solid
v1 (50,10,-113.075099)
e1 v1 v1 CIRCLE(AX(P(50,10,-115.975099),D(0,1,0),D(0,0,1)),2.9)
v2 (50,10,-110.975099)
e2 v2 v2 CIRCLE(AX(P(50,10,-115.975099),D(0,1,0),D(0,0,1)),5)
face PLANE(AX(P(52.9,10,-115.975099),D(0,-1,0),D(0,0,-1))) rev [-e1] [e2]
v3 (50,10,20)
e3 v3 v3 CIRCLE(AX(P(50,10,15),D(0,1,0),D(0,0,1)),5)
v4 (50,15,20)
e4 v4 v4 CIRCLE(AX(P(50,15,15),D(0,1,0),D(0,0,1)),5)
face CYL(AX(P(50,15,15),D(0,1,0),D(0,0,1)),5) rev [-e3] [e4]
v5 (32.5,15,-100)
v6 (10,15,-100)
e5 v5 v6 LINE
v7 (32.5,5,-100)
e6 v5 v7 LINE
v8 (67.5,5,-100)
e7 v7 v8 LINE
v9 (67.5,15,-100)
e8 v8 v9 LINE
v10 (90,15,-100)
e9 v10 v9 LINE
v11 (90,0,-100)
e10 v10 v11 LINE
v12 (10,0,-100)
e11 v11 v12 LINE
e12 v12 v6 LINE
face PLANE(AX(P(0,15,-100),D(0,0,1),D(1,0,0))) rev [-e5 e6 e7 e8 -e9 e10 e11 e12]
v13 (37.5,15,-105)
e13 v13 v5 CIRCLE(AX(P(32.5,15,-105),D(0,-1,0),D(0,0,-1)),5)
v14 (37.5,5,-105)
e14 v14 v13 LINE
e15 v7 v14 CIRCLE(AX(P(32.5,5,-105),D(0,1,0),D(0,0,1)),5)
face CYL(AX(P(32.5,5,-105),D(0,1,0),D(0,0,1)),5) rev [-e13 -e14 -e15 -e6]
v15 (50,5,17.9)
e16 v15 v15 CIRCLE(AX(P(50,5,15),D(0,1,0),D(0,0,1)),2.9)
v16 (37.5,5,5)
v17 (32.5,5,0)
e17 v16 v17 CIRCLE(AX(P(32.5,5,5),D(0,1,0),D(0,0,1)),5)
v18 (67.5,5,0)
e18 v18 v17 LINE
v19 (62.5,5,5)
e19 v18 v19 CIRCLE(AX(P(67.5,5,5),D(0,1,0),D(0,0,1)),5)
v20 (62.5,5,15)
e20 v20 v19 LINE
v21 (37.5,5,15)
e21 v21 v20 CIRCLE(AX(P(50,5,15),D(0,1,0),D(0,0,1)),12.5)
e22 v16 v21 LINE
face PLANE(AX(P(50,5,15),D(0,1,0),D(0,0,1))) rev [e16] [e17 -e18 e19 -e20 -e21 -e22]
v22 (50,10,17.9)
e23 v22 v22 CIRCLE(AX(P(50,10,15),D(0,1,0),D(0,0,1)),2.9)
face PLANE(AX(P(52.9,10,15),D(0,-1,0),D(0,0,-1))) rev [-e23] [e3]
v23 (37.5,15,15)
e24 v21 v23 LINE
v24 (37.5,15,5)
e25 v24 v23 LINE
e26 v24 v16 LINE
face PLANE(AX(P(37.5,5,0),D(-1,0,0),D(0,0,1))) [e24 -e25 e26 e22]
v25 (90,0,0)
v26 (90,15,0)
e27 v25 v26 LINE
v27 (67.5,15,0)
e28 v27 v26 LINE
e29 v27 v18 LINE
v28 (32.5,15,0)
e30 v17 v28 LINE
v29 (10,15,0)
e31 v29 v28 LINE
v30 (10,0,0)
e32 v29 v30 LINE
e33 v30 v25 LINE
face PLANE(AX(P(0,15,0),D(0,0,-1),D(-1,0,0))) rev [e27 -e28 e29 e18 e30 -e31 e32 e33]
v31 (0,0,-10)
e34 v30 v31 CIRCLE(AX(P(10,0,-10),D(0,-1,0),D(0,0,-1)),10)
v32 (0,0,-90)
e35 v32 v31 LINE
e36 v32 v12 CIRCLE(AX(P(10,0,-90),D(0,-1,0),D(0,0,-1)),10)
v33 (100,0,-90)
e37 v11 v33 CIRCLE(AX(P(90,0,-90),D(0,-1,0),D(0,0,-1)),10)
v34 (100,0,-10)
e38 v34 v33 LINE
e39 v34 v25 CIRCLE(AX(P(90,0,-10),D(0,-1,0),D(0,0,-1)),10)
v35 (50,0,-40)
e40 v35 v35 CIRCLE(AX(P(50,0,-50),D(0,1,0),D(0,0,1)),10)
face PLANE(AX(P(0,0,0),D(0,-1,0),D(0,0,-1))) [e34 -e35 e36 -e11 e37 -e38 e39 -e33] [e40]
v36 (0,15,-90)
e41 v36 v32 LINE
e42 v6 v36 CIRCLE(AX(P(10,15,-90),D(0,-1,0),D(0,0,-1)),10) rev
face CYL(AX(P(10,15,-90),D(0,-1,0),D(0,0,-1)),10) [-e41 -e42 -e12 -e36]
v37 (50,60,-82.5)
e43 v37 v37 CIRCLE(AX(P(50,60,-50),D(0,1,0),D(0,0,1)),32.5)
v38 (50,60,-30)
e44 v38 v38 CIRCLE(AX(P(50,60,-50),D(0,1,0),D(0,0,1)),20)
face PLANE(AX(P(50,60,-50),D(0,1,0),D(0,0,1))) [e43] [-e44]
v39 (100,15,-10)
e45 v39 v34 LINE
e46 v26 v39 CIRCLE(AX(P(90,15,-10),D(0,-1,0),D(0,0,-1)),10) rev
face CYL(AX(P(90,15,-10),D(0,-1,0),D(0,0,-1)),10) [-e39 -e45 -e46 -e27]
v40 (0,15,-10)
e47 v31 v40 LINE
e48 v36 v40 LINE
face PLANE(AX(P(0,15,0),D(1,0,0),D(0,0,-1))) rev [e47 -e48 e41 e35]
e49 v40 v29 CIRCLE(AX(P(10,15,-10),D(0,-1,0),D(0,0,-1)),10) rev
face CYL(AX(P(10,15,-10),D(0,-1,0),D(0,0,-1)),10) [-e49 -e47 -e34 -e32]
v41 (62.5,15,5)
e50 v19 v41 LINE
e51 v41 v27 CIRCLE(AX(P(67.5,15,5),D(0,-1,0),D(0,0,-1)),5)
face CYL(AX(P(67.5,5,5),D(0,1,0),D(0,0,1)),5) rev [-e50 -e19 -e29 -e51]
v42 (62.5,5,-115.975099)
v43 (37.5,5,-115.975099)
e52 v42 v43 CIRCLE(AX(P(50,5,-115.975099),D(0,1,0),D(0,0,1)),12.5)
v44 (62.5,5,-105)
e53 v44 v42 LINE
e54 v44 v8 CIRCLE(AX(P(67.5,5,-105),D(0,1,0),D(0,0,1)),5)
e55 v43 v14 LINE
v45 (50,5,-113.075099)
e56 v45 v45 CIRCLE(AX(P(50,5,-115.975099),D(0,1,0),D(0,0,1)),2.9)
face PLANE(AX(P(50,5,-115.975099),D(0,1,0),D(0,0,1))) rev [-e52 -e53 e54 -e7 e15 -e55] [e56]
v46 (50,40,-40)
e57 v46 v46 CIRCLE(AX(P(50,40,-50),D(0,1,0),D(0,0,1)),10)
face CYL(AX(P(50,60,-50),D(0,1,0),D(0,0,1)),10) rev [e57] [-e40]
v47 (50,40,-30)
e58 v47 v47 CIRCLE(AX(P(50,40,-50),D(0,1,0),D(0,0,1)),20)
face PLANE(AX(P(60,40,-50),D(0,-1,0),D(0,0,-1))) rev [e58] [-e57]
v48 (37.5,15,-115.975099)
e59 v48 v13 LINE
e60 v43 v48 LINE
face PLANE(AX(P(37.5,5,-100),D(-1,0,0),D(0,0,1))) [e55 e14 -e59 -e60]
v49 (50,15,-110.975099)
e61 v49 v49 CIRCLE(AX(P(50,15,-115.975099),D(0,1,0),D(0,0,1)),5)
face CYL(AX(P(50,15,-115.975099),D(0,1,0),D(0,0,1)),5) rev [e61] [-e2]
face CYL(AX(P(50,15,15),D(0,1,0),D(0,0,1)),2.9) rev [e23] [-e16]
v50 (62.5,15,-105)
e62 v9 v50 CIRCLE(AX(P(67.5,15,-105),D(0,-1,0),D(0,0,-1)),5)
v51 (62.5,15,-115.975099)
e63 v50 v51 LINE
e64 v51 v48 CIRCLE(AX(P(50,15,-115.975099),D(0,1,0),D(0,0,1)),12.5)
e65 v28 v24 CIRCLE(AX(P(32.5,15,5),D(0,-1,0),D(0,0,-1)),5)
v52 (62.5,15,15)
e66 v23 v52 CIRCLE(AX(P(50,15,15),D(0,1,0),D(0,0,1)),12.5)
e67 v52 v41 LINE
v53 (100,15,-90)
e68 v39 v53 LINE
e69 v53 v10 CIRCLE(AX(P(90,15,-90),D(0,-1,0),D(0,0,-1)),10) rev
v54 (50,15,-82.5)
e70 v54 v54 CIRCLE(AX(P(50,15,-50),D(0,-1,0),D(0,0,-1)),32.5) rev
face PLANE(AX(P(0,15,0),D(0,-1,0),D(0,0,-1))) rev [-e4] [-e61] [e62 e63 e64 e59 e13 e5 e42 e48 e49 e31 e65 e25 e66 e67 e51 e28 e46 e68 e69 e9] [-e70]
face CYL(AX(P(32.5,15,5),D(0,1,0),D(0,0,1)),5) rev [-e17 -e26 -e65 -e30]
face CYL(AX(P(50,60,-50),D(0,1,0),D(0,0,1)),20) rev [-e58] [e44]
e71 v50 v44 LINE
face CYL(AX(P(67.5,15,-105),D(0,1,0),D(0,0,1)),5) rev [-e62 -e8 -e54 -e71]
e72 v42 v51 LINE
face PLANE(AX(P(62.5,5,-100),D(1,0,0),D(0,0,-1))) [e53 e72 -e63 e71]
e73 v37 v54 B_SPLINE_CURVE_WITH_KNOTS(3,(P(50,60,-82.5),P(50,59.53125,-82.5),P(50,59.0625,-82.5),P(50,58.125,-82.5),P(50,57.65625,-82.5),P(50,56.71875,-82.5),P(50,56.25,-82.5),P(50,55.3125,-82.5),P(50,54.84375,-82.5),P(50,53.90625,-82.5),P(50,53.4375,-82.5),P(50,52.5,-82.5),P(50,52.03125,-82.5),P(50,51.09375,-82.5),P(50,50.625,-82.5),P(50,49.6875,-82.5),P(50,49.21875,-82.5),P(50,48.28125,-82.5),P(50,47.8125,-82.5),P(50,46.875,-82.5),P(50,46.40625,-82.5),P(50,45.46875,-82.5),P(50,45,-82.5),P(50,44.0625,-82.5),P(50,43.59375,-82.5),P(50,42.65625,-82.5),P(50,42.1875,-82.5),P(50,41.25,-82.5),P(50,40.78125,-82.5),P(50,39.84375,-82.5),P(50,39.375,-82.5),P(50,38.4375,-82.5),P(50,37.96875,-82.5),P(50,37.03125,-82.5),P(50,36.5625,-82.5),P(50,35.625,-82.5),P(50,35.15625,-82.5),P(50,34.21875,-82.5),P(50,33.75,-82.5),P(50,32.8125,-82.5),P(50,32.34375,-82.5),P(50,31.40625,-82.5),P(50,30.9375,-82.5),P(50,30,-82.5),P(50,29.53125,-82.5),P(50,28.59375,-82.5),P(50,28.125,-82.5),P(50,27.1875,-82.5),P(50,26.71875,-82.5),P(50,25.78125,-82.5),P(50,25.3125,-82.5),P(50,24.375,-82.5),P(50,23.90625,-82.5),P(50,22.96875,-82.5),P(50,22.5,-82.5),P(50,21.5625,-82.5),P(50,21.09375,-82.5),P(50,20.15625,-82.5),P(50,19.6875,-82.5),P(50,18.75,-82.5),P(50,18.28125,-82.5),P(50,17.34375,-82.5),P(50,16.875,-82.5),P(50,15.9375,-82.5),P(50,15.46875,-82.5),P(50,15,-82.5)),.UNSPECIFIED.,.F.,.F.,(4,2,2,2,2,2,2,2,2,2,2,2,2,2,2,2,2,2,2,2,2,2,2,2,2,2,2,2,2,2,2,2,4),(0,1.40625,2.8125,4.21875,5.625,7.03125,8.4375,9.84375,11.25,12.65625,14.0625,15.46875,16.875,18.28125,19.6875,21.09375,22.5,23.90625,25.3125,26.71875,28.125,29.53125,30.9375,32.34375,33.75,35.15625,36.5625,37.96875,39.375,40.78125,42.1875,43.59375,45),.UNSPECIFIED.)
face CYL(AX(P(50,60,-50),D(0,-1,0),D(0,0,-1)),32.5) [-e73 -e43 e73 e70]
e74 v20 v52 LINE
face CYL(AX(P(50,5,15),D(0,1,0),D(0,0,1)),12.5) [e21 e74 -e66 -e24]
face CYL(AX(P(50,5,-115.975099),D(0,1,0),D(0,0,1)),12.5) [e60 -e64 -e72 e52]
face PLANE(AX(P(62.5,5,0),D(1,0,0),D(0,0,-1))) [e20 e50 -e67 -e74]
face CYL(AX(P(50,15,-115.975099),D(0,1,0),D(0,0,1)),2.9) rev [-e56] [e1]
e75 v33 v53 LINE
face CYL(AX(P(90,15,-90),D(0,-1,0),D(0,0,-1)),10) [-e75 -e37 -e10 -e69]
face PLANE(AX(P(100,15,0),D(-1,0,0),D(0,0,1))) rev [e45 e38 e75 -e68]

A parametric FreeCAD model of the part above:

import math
import FreeCAD as App
import Part
import Sketcher

V = App.Vector
Q = App.Units.Quantity


def edges_at(feature, points):
    """Names of the edges that pass closest to the given points."""
    edges = feature.Shape.Edges
    near = lambda p: min(range(len(edges)), key=lambda i: edges[i].distToShape(Part.Vertex(*p))[0])
    return sorted({f"Edge{near(p) + 1}" for p in points})


def add_polygon(sketch, points):
    """Adds a closed chain of lines whose ends are joined by coincident constraints."""
    first, n = sketch.GeometryCount, len(points)
    for a, b in zip(points, points[1:] + points[:1]):
        sketch.addGeometry(Part.LineSegment(App.Vector(*a, 0), App.Vector(*b, 0)), False)
    for i in range(n):
        sketch.addConstraint(Sketcher.Constraint("Coincident", first + i, 2, first + (i + 1) % n, 1))

doc = App.newDocument("Part")
body = doc.addObject("PartDesign::Body", "Body")

# Sketch on XZ plane
sketch1 = body.newObject("Sketcher::SketchObject", "Sketch")
sketch1.AttachmentSupport = (doc.getObject("XZ_Plane"), [""])
sketch1.MapMode = "FlatFace"
add_polygon(sketch1, [(0, -100), (0, 0), (100, 0), (100, -100)])  # lines 0-3
sketch1.addConstraint([
    Sketcher.Constraint("Vertical", 0),
    Sketcher.Constraint("Horizontal", 1),
    Sketcher.Constraint("Vertical", 2),
    Sketcher.Constraint("Horizontal", 3),
    Sketcher.Constraint("Coincident", 0, 2, -1, 1),
    Sketcher.Constraint("Equal", 3, 0),
    Sketcher.Constraint("DistanceX", 1, 1, 1, 2, Q("100 mm")),
])
pad1 = body.newObject("PartDesign::Pad", "Pad")
pad1.Profile = sketch1
pad1.Length = 15
pad1.Reversed = True

# Sketch on XZ plane
sketch2 = body.newObject("Sketcher::SketchObject", "Sketch001")
sketch2.AttachmentSupport = (doc.getObject("XZ_Plane"), [""])
sketch2.MapMode = "FlatFace"
sketch2.AttachmentOffset = App.Placement(V(0, 0, -15), App.Rotation())
sketch2.addGeometry([
    Part.LineSegment(V(37.5, -115.975099, 0), V(37.5, -100, 0)),  # 0
    Part.LineSegment(V(37.5, -100, 0), V(62.5, -100, 0)),  # 1
    Part.LineSegment(V(62.5, -100, 0), V(62.5, -115.975099, 0)),  # 2
    Part.ArcOfCircle(Part.Circle(V(50, -115.975099, 0), V(0, 0, 1), 12.5), math.radians(180), math.radians(360)),  # 3
    Part.LineSegment(V(62.5, 15, 0), V(62.5, 0, 0)),  # 4
    Part.LineSegment(V(62.5, 0, 0), V(37.5, 0, 0)),  # 5
    Part.LineSegment(V(37.5, 0, 0), V(37.5, 15, 0)),  # 6
    Part.ArcOfCircle(Part.Circle(V(50, 15, 0), V(0, 0, 1), 12.5), math.radians(0), math.radians(180)),  # 7
], False)
sketch2.addConstraint([
    Sketcher.Constraint("Coincident", 0, 2, 1, 1),
    Sketcher.Constraint("Coincident", 1, 2, 2, 1),
    Sketcher.Constraint("Tangent", 2, 2, 3, 2),
    Sketcher.Constraint("Tangent", 3, 1, 0, 1),
    Sketcher.Constraint("Coincident", 4, 2, 5, 1),
    Sketcher.Constraint("Coincident", 5, 2, 6, 1),
    Sketcher.Constraint("Tangent", 6, 2, 7, 2),
    Sketcher.Constraint("Tangent", 7, 1, 4, 1),
    Sketcher.Constraint("Vertical", 0),
    Sketcher.Constraint("Horizontal", 1),
    Sketcher.Constraint("Vertical", 2),
    Sketcher.Constraint("Vertical", 4),
    Sketcher.Constraint("Horizontal", 5),
    Sketcher.Constraint("Vertical", 6),
    Sketcher.Constraint("Equal", 3, 7),
    Sketcher.Constraint("PointOnObject", 4, 2, -1),
    Sketcher.Constraint("Vertical", 3, 3, 7, 3),
    Sketcher.Constraint("Radius", 3, Q("12.5 mm")),
    Sketcher.Constraint("DistanceY", 4, 2, 4, 1, Q("15 mm")),
    Sketcher.Constraint("DistanceX", -1, 1, 3, 3, Q("50 mm")),
    Sketcher.Constraint("DistanceY", 0, 2, -1, 1, Q("100 mm")),
    Sketcher.Constraint("DistanceY", 0, 1, 0, 2, Q("15.975099 mm")),
])
pad2 = body.newObject("PartDesign::Pad", "Pad001")
pad2.Profile = sketch2
pad2.Length = 10

# Sketch on XZ plane
sketch3 = body.newObject("Sketcher::SketchObject", "Sketch002")
sketch3.AttachmentSupport = (doc.getObject("XZ_Plane"), [""])
sketch3.MapMode = "FlatFace"
sketch3.AttachmentOffset = App.Placement(V(0, 0, -15), App.Rotation())
sketch3.addGeometry([
    Part.Circle(V(50, -115.975099, 0), V(0, 0, 1), 2.9),
    Part.Circle(V(50, 15, 0), V(0, 0, 1), 2.9),
], False)
sketch3.addConstraint([
    Sketcher.Constraint("Equal", 0, 1),
    Sketcher.Constraint("Vertical", 0, 3, 1, 3),
    Sketcher.Constraint("Diameter", 0, Q("5.8 mm")),
    Sketcher.Constraint("DistanceX", -1, 1, 0, 3, Q("50 mm")),
    Sketcher.Constraint("DistanceY", -1, 1, 1, 3, Q("15 mm")),
    Sketcher.Constraint("DistanceY", 0, 3, -1, 1, Q("115.975099 mm")),
])
doc.recompute()
hole = body.newObject("PartDesign::Hole", "Hole")
hole.Profile = sketch3
hole.ThreadType = "None"
hole.Diameter = 5.8
hole.DepthType = "ThroughAll"
hole.HoleCutType = "Counterbore"
hole.HoleCutDiameter = 10
hole.HoleCutDepth = 5
hole.Reversed = True
doc.recompute()

fillet = body.newObject("PartDesign::Fillet", "Fillet")
fillet.Base = (hole, edges_at(hole, [
    (62.5, 10, -100),
    (37.5, 10, -100),
    (37.5, 10, 0),
    (62.5, 10, 0),
]))
fillet.Radius = 5
doc.recompute()

fillet2 = body.newObject("PartDesign::Fillet", "Fillet001")
fillet2.Base = (fillet, edges_at(fillet, [
    (0, 7.5, -100),
    (100, 7.5, -100),
    (100, 7.5, 0),
    (0, 7.5, 0),
]))
fillet2.Radius = 10

# Sketch on XZ plane
sketch4 = body.newObject("Sketcher::SketchObject", "Sketch003")
sketch4.AttachmentSupport = (doc.getObject("XZ_Plane"), [""])
sketch4.MapMode = "FlatFace"
sketch4.AttachmentOffset = App.Placement(V(0, 0, -15), App.Rotation())
sketch4.addGeometry(Part.Circle(V(50, -50, 0), V(0, 0, 1), 32.5), False)
sketch4.addConstraint([
    Sketcher.Constraint("Diameter", 0, Q("65 mm")),
    Sketcher.Constraint("DistanceX", -1, 1, 0, 3, Q("50 mm")),
    Sketcher.Constraint("DistanceY", 0, 3, -1, 1, Q("50 mm")),
])
pad3 = body.newObject("PartDesign::Pad", "Pad002")
pad3.Profile = sketch4
pad3.Length = 45
pad3.Reversed = True

# Sketch on XZ plane
sketch5 = body.newObject("Sketcher::SketchObject", "Sketch004")
sketch5.AttachmentSupport = (doc.getObject("XZ_Plane"), [""])
sketch5.MapMode = "FlatFace"
sketch5.AttachmentOffset = App.Placement(V(0, 0, -60), App.Rotation())
sketch5.addGeometry(Part.Circle(V(50, -50, 0), V(0, 0, 1), 10), False)
sketch5.addConstraint([
    Sketcher.Constraint("Diameter", 0, Q("20 mm")),
    Sketcher.Constraint("DistanceX", -1, 1, 0, 3, Q("50 mm")),
    Sketcher.Constraint("DistanceY", 0, 3, -1, 1, Q("50 mm")),
])
doc.recompute()
hole2 = body.newObject("PartDesign::Hole", "Hole001")
hole2.Profile = sketch5
hole2.ThreadType = "None"
hole2.Diameter = 20
hole2.DepthType = "ThroughAll"
hole2.HoleCutType = "Counterbore"
hole2.HoleCutDiameter = 40
hole2.HoleCutDepth = 20
hole2.Reversed = True

doc.recompute()
